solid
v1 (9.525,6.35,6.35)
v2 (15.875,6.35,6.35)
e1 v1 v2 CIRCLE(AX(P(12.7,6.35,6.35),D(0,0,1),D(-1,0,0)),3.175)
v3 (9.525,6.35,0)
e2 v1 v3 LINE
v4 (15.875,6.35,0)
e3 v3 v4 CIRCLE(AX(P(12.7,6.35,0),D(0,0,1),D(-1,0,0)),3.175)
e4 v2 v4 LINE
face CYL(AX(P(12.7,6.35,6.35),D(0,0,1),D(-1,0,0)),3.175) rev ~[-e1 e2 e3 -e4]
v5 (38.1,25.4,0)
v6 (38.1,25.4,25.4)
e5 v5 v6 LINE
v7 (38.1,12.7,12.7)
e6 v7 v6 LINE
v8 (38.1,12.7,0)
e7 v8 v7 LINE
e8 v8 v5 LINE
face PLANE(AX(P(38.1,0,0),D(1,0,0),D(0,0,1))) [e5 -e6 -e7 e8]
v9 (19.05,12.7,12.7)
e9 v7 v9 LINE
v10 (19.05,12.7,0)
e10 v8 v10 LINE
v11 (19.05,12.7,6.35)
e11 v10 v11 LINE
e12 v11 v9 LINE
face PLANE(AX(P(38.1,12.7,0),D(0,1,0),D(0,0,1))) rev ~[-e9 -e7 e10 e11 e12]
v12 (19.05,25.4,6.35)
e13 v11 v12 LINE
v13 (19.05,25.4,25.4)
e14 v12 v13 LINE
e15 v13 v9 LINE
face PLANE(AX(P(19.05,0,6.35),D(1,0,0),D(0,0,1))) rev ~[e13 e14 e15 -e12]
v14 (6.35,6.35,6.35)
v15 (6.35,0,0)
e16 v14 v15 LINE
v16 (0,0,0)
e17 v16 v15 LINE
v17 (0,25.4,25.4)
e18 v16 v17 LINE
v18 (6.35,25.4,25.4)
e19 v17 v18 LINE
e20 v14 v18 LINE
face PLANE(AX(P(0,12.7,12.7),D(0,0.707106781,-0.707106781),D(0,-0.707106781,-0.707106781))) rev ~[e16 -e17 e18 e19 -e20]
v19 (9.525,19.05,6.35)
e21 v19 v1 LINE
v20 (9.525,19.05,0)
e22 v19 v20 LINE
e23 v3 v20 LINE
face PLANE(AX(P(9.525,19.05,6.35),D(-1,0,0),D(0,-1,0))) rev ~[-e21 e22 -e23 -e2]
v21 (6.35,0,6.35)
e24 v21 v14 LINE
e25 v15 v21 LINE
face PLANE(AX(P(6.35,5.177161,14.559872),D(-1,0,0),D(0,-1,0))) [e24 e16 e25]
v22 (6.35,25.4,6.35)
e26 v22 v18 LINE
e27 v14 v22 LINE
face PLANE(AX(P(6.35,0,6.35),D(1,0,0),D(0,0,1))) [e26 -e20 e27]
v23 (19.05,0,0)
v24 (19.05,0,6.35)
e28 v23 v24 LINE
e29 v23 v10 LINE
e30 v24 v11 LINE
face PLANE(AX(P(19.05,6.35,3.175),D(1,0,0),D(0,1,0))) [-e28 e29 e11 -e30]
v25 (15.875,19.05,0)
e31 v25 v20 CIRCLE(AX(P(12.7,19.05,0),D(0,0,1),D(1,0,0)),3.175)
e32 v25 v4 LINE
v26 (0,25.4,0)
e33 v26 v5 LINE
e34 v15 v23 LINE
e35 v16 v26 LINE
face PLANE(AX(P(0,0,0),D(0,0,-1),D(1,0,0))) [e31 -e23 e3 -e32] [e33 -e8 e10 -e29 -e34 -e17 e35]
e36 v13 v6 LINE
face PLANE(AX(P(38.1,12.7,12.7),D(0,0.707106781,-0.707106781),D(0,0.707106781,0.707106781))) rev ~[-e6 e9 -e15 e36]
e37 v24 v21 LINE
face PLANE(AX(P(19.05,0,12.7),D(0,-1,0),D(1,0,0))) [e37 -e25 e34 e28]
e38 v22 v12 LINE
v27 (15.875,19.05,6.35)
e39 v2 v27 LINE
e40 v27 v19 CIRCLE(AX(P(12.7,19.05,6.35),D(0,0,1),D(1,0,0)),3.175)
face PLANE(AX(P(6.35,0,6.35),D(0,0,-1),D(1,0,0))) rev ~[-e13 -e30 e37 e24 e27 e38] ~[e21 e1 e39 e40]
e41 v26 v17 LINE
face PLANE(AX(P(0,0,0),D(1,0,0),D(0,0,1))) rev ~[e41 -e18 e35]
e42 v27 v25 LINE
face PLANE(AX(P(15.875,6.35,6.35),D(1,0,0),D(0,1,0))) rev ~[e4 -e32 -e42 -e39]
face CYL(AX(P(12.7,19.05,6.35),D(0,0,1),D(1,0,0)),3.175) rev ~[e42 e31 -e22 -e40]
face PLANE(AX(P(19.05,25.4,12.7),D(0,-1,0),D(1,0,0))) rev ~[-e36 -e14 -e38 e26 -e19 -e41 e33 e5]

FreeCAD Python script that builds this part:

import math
import FreeCAD as App
import Part
import Sketcher
Q = App.Units.Quantity

doc = App.newDocument("Part")
params = doc.addObject("Spreadsheet::Sheet", "Params")
for row, (alias, value) in enumerate([
    ("sketch1_height", "1 in"),
    ("sketch1_width", "1.5 in"),
    ("pad1_length", "1 in"),
    ("sketch2_width", "0.5 in"),
    ("pocket1_length", "2 in"),
    ("sketch3_width", "0.5 in"),
    ("sketch3_height", "0.75 in"),
    ("pocket2_length", "0.75 in"),
    ("sketch4_width", "0.5 in"),
    ("sketch4_height", "0.75 in"),
    ("pocket3_length", "1 in"),
    ("sketch5_height", "1 in"),
    ("sketch5_width", "0.5 in"),
    ("pocket4_length", "0.25 in"),
    ("sketch6_width", "0.5 in"),
    ("sketch6_height", "0.25 in"),
    ("pocket5_length", "0.75 in"),
    ("sketch7_height", "0.5 in"),
    ("sketch7_radius", "0.125 in"),
    ("pocket6_length", "1 in"),
], start=1):
    params.set(f"A{row}", alias)
    params.set(f"B{row}", "=" + value)
    params.setAlias(f"B{row}", alias)

body = doc.addObject("PartDesign::Body", "Body")

sketch1 = body.newObject("Sketcher::SketchObject", "Sketch")
sketch1.AttachmentSupport = (doc.getObject("XZ_Plane"), [""])
sketch1.MapMode = "FlatFace"
sketch1.addGeometry(Part.LineSegment(App.Vector(0, 25.4, 0), App.Vector(0, 0, 0)), False)
sketch1.addGeometry(Part.LineSegment(App.Vector(0, 0, 0), App.Vector(38.1, 0, 0)), False)
sketch1.addGeometry(Part.LineSegment(App.Vector(38.1, 0, 0), App.Vector(38.1, 25.4, 0)), False)
sketch1.addGeometry(Part.LineSegment(App.Vector(38.1, 25.4, 0), App.Vector(0, 25.4, 0)), False)
sketch1.addConstraint(Sketcher.Constraint("Coincident", 0, 2, 1, 1))
sketch1.addConstraint(Sketcher.Constraint("Coincident", 1, 2, 2, 1))
sketch1.addConstraint(Sketcher.Constraint("Coincident", 2, 2, 3, 1))
sketch1.addConstraint(Sketcher.Constraint("Coincident", 3, 2, 0, 1))
sketch1.addConstraint(Sketcher.Constraint("Vertical", 0))
sketch1.addConstraint(Sketcher.Constraint("Horizontal", 1))
sketch1.addConstraint(Sketcher.Constraint("Vertical", 2))
sketch1.addConstraint(Sketcher.Constraint("Horizontal", 3))
sketch1.addConstraint(Sketcher.Constraint("Coincident", 0, 2, -1, 1))
sketch1.addConstraint(Sketcher.Constraint("DistanceY", 0, 2, 0, 1, Q("1 in")))
sketch1.addConstraint(Sketcher.Constraint("DistanceX", 1, 1, 1, 2, Q("1.5 in")))
sketch1.setExpression("Constraints[9]", "Params.sketch1_height")
sketch1.setExpression("Constraints[10]", "Params.sketch1_width")
pad1 = body.newObject("PartDesign::Pad", "Pad")
pad1.Profile = sketch1
pad1.setExpression("Length", "Params.pad1_length")
pad1.Reversed = True

sketch2 = body.newObject("Sketcher::SketchObject", "Sketch001")
sketch2.AttachmentSupport = (doc.getObject("YZ_Plane"), [""])
sketch2.MapMode = "FlatFace"
sketch2.AttachmentOffset = App.Placement(App.Vector(0, 0, 1.5 * 25.4), App.Rotation())
sketch2.addGeometry(Part.LineSegment(App.Vector(25.4, 25.4, 0), App.Vector(12.7, 25.4, 0)), False)
sketch2.addGeometry(Part.LineSegment(App.Vector(12.7, 25.4, 0), App.Vector(12.7, 12.7, 0)), False)
sketch2.addGeometry(Part.LineSegment(App.Vector(12.7, 12.7, 0), App.Vector(25.4, 25.4, 0)), False)
sketch2.addConstraint(Sketcher.Constraint("Coincident", 0, 2, 1, 1))
sketch2.addConstraint(Sketcher.Constraint("Coincident", 1, 2, 2, 1))
sketch2.addConstraint(Sketcher.Constraint("Coincident", 2, 2, 0, 1))
sketch2.addConstraint(Sketcher.Constraint("Horizontal", 0))
sketch2.addConstraint(Sketcher.Constraint("Vertical", 1))
sketch2.addConstraint(Sketcher.Constraint("Equal", 0, 1))
sketch2.addConstraint(Sketcher.Constraint("DistanceX", 0, 2, 0, 1, Q("0.5 in")))
sketch2.addConstraint(Sketcher.Constraint("DistanceY", -1, 1, 0, 2, Q("1 in")))
sketch2.addConstraint(Sketcher.Constraint("DistanceX", -1, 1, 2, 2, Q("1 in")))
sketch2.setExpression("Constraints[6]", "Params.sketch2_width")
pocket1 = body.newObject("PartDesign::Pocket", "Pocket")
pocket1.Profile = sketch2
pocket1.setExpression("Length", "Params.pocket1_length")

sketch3 = body.newObject("Sketcher::SketchObject", "Sketch002")
sketch3.AttachmentSupport = (doc.getObject("YZ_Plane"), [""])
sketch3.MapMode = "FlatFace"
sketch3.AttachmentOffset = App.Placement(App.Vector(0, 0, 1.5 * 25.4), App.Rotation())
sketch3.addGeometry(Part.LineSegment(App.Vector(12.7, 25.4, 0), App.Vector(0, 25.4, 0)), False)
sketch3.addGeometry(Part.LineSegment(App.Vector(0, 25.4, 0), App.Vector(0, 6.35, 0)), False)
sketch3.addGeometry(Part.LineSegment(App.Vector(0, 6.35, 0), App.Vector(12.7, 6.35, 0)), False)
sketch3.addGeometry(Part.LineSegment(App.Vector(12.7, 6.35, 0), App.Vector(12.7, 25.4, 0)), False)
sketch3.addConstraint(Sketcher.Constraint("Coincident", 0, 2, 1, 1))
sketch3.addConstraint(Sketcher.Constraint("Coincident", 1, 2, 2, 1))
sketch3.addConstraint(Sketcher.Constraint("Coincident", 2, 2, 3, 1))
sketch3.addConstraint(Sketcher.Constraint("Coincident", 3, 2, 0, 1))
sketch3.addConstraint(Sketcher.Constraint("Horizontal", 0))
sketch3.addConstraint(Sketcher.Constraint("Vertical", 1))
sketch3.addConstraint(Sketcher.Constraint("Horizontal", 2))
sketch3.addConstraint(Sketcher.Constraint("Vertical", 3))
sketch3.addConstraint(Sketcher.Constraint("PointOnObject", 0, 2, -2))
sketch3.addConstraint(Sketcher.Constraint("DistanceX", 0, 2, 0, 1, Q("0.5 in")))
sketch3.addConstraint(Sketcher.Constraint("DistanceY", -1, 1, 0, 2, Q("1 in")))
sketch3.addConstraint(Sketcher.Constraint("DistanceY", 1, 2, 1, 1, Q("0.75 in")))
sketch3.setExpression("Constraints[9]", "Params.sketch3_width")
sketch3.setExpression("Constraints[11]", "Params.sketch3_height")
pocket2 = body.newObject("PartDesign::Pocket", "Pocket001")
pocket2.Profile = sketch3
pocket2.setExpression("Length", "Params.pocket2_length")

sketch4 = body.newObject("Sketcher::SketchObject", "Sketch003")
sketch4.AttachmentSupport = (doc.getObject("XZ_Plane"), [""])
sketch4.MapMode = "FlatFace"
sketch4.addGeometry(Part.LineSegment(App.Vector(6.35, 25.4, 0), App.Vector(6.35, 6.35, 0)), False)
sketch4.addGeometry(Part.LineSegment(App.Vector(6.35, 6.35, 0), App.Vector(19.05, 6.35, 0)), False)
sketch4.addGeometry(Part.LineSegment(App.Vector(19.05, 6.35, 0), App.Vector(19.05, 25.4, 0)), False)
sketch4.addGeometry(Part.LineSegment(App.Vector(19.05, 25.4, 0), App.Vector(6.35, 25.4, 0)), False)
sketch4.addConstraint(Sketcher.Constraint("Coincident", 0, 2, 1, 1))
sketch4.addConstraint(Sketcher.Constraint("Coincident", 1, 2, 2, 1))
sketch4.addConstraint(Sketcher.Constraint("Coincident", 2, 2, 3, 1))
sketch4.addConstraint(Sketcher.Constraint("Coincident", 3, 2, 0, 1))
sketch4.addConstraint(Sketcher.Constraint("Vertical", 0))
sketch4.addConstraint(Sketcher.Constraint("Horizontal", 1))
sketch4.addConstraint(Sketcher.Constraint("Vertical", 2))
sketch4.addConstraint(Sketcher.Constraint("Horizontal", 3))
sketch4.addConstraint(Sketcher.Constraint("DistanceX", 1, 1, 1, 2, Q("0.5 in")))
sketch4.addConstraint(Sketcher.Constraint("DistanceY", -1, 1, 2, 2, Q("1 in")))
sketch4.addConstraint(Sketcher.Constraint("DistanceY", 0, 2, 0, 1, Q("0.75 in")))
sketch4.addConstraint(Sketcher.Constraint("DistanceX", -1, 1, 0, 2, Q("0.25 in")))
sketch4.setExpression("Constraints[8]", "Params.sketch4_width")
sketch4.setExpression("Constraints[10]", "Params.sketch4_height")
pocket3 = body.newObject("PartDesign::Pocket", "Pocket002")
pocket3.Profile = sketch4
pocket3.setExpression("Length", "Params.pocket3_length")

sketch5 = body.newObject("Sketcher::SketchObject", "Sketch004")
sketch5.AttachmentSupport = (doc.getObject("YZ_Plane"), [""])
sketch5.MapMode = "FlatFace"
sketch5.addGeometry(Part.LineSegment(App.Vector(12.7, 25.4, 0), App.Vector(12.7, 12.7, 0)), False)
sketch5.addGeometry(Part.LineSegment(App.Vector(12.7, 12.7, 0), App.Vector(0, 0, 0)), False)
sketch5.addGeometry(Part.LineSegment(App.Vector(0, 0, 0), App.Vector(0, 25.4, 0)), False)
sketch5.addGeometry(Part.LineSegment(App.Vector(0, 25.4, 0), App.Vector(12.7, 25.4, 0)), False)
sketch5.addConstraint(Sketcher.Constraint("Coincident", 0, 2, 1, 1))
sketch5.addConstraint(Sketcher.Constraint("Coincident", 1, 2, 2, 1))
sketch5.addConstraint(Sketcher.Constraint("Coincident", 2, 2, 3, 1))
sketch5.addConstraint(Sketcher.Constraint("Coincident", 3, 2, 0, 1))
sketch5.addConstraint(Sketcher.Constraint("Vertical", 0))
sketch5.addConstraint(Sketcher.Constraint("Vertical", 2))
sketch5.addConstraint(Sketcher.Constraint("Horizontal", 3))
sketch5.addConstraint(Sketcher.Constraint("Coincident", 1, 2, -1, 1))
sketch5.addConstraint(Sketcher.Constraint("Equal", 3, 0))
sketch5.addConstraint(Sketcher.Constraint("DistanceY", 2, 1, 2, 2, Q("1 in")))
sketch5.addConstraint(Sketcher.Constraint("DistanceX", 3, 1, 3, 2, Q("0.5 in")))
sketch5.setExpression("Constraints[9]", "Params.sketch5_height")
sketch5.setExpression("Constraints[10]", "Params.sketch5_width")
pocket4 = body.newObject("PartDesign::Pocket", "Pocket003")
pocket4.Profile = sketch5
pocket4.setExpression("Length", "Params.pocket4_length")
pocket4.Reversed = True

sketch6 = body.newObject("Sketcher::SketchObject", "Sketch005")
sketch6.AttachmentSupport = (doc.getObject("YZ_Plane"), [""])
sketch6.MapMode = "FlatFace"
sketch6.AttachmentOffset = App.Placement(App.Vector(0, 0, 1.5 * 25.4), App.Rotation())
sketch6.addGeometry(Part.LineSegment(App.Vector(0, 6.35, 0), App.Vector(0, 0, 0)), False)
sketch6.addGeometry(Part.LineSegment(App.Vector(0, 0, 0), App.Vector(12.7, 0, 0)), False)
sketch6.addGeometry(Part.LineSegment(App.Vector(12.7, 0, 0), App.Vector(12.7, 6.35, 0)), False)
sketch6.addGeometry(Part.LineSegment(App.Vector(12.7, 6.35, 0), App.Vector(0, 6.35, 0)), False)
sketch6.addConstraint(Sketcher.Constraint("Coincident", 0, 2, 1, 1))
sketch6.addConstraint(Sketcher.Constraint("Coincident", 1, 2, 2, 1))
sketch6.addConstraint(Sketcher.Constraint("Coincident", 2, 2, 3, 1))
sketch6.addConstraint(Sketcher.Constraint("Coincident", 3, 2, 0, 1))
sketch6.addConstraint(Sketcher.Constraint("Vertical", 0))
sketch6.addConstraint(Sketcher.Constraint("Horizontal", 1))
sketch6.addConstraint(Sketcher.Constraint("Vertical", 2))
sketch6.addConstraint(Sketcher.Constraint("Horizontal", 3))
sketch6.addConstraint(Sketcher.Constraint("Coincident", 0, 2, -1, 1))
sketch6.addConstraint(Sketcher.Constraint("DistanceX", 1, 1, 1, 2, Q("0.5 in")))
sketch6.addConstraint(Sketcher.Constraint("DistanceY", 0, 2, 0, 1, Q("0.25 in")))
sketch6.setExpression("Constraints[9]", "Params.sketch6_width")
sketch6.setExpression("Constraints[10]", "Params.sketch6_height")
pocket5 = body.newObject("PartDesign::Pocket", "Pocket004")
pocket5.Profile = sketch6
pocket5.setExpression("Length", "Params.pocket5_length")

sketch7 = body.newObject("Sketcher::SketchObject", "Sketch006")
sketch7.AttachmentSupport = (doc.getObject("XY_Plane"), [""])
sketch7.MapMode = "FlatFace"
sketch7.AttachmentOffset = App.Placement(App.Vector(0, 0, 0.25 * 25.4), App.Rotation())
sketch7.addGeometry(Part.ArcOfCircle(Part.Circle(App.Vector(12.7, 19.05, 0), App.Vector(0, 0, 1), 3.175), math.radians(0), math.radians(180)), False)
sketch7.addGeometry(Part.LineSegment(App.Vector(9.525, 19.05, 0), App.Vector(9.525, 6.35, 0)), False)
sketch7.addGeometry(Part.ArcOfCircle(Part.Circle(App.Vector(12.7, 6.35, 0), App.Vector(0, 0, 1), 3.175), math.radians(180), math.radians(360)), False)
sketch7.addGeometry(Part.LineSegment(App.Vector(15.875, 6.35, 0), App.Vector(15.875, 19.05, 0)), False)
sketch7.addConstraint(Sketcher.Constraint("Tangent", 0, 2, 1, 1))
sketch7.addConstraint(Sketcher.Constraint("Tangent", 1, 2, 2, 1))
sketch7.addConstraint(Sketcher.Constraint("Tangent", 2, 2, 3, 1))
sketch7.addConstraint(Sketcher.Constraint("Tangent", 3, 2, 0, 1))
sketch7.addConstraint(Sketcher.Constraint("Vertical", 1))
sketch7.addConstraint(Sketcher.Constraint("Vertical", 3))
sketch7.addConstraint(Sketcher.Constraint("DistanceY", 1, 2, 1, 1, Q("0.5 in")))
sketch7.addConstraint(Sketcher.Constraint("Radius", 0, Q("0.125 in")))
sketch7.addConstraint(Sketcher.Constraint("DistanceX", -1, 1, 0, 3, Q("0.5 in")))
sketch7.addConstraint(Sketcher.Constraint("DistanceY", -1, 1, 0, 3, Q("0.75 in")))
sketch7.setExpression("Constraints[6]", "Params.sketch7_height")
sketch7.setExpression("Constraints[7]", "Params.sketch7_radius")
pocket6 = body.newObject("PartDesign::Pocket", "Pocket005")
pocket6.Profile = sketch7
pocket6.setExpression("Length", "Params.pocket6_length")

doc.recompute()
